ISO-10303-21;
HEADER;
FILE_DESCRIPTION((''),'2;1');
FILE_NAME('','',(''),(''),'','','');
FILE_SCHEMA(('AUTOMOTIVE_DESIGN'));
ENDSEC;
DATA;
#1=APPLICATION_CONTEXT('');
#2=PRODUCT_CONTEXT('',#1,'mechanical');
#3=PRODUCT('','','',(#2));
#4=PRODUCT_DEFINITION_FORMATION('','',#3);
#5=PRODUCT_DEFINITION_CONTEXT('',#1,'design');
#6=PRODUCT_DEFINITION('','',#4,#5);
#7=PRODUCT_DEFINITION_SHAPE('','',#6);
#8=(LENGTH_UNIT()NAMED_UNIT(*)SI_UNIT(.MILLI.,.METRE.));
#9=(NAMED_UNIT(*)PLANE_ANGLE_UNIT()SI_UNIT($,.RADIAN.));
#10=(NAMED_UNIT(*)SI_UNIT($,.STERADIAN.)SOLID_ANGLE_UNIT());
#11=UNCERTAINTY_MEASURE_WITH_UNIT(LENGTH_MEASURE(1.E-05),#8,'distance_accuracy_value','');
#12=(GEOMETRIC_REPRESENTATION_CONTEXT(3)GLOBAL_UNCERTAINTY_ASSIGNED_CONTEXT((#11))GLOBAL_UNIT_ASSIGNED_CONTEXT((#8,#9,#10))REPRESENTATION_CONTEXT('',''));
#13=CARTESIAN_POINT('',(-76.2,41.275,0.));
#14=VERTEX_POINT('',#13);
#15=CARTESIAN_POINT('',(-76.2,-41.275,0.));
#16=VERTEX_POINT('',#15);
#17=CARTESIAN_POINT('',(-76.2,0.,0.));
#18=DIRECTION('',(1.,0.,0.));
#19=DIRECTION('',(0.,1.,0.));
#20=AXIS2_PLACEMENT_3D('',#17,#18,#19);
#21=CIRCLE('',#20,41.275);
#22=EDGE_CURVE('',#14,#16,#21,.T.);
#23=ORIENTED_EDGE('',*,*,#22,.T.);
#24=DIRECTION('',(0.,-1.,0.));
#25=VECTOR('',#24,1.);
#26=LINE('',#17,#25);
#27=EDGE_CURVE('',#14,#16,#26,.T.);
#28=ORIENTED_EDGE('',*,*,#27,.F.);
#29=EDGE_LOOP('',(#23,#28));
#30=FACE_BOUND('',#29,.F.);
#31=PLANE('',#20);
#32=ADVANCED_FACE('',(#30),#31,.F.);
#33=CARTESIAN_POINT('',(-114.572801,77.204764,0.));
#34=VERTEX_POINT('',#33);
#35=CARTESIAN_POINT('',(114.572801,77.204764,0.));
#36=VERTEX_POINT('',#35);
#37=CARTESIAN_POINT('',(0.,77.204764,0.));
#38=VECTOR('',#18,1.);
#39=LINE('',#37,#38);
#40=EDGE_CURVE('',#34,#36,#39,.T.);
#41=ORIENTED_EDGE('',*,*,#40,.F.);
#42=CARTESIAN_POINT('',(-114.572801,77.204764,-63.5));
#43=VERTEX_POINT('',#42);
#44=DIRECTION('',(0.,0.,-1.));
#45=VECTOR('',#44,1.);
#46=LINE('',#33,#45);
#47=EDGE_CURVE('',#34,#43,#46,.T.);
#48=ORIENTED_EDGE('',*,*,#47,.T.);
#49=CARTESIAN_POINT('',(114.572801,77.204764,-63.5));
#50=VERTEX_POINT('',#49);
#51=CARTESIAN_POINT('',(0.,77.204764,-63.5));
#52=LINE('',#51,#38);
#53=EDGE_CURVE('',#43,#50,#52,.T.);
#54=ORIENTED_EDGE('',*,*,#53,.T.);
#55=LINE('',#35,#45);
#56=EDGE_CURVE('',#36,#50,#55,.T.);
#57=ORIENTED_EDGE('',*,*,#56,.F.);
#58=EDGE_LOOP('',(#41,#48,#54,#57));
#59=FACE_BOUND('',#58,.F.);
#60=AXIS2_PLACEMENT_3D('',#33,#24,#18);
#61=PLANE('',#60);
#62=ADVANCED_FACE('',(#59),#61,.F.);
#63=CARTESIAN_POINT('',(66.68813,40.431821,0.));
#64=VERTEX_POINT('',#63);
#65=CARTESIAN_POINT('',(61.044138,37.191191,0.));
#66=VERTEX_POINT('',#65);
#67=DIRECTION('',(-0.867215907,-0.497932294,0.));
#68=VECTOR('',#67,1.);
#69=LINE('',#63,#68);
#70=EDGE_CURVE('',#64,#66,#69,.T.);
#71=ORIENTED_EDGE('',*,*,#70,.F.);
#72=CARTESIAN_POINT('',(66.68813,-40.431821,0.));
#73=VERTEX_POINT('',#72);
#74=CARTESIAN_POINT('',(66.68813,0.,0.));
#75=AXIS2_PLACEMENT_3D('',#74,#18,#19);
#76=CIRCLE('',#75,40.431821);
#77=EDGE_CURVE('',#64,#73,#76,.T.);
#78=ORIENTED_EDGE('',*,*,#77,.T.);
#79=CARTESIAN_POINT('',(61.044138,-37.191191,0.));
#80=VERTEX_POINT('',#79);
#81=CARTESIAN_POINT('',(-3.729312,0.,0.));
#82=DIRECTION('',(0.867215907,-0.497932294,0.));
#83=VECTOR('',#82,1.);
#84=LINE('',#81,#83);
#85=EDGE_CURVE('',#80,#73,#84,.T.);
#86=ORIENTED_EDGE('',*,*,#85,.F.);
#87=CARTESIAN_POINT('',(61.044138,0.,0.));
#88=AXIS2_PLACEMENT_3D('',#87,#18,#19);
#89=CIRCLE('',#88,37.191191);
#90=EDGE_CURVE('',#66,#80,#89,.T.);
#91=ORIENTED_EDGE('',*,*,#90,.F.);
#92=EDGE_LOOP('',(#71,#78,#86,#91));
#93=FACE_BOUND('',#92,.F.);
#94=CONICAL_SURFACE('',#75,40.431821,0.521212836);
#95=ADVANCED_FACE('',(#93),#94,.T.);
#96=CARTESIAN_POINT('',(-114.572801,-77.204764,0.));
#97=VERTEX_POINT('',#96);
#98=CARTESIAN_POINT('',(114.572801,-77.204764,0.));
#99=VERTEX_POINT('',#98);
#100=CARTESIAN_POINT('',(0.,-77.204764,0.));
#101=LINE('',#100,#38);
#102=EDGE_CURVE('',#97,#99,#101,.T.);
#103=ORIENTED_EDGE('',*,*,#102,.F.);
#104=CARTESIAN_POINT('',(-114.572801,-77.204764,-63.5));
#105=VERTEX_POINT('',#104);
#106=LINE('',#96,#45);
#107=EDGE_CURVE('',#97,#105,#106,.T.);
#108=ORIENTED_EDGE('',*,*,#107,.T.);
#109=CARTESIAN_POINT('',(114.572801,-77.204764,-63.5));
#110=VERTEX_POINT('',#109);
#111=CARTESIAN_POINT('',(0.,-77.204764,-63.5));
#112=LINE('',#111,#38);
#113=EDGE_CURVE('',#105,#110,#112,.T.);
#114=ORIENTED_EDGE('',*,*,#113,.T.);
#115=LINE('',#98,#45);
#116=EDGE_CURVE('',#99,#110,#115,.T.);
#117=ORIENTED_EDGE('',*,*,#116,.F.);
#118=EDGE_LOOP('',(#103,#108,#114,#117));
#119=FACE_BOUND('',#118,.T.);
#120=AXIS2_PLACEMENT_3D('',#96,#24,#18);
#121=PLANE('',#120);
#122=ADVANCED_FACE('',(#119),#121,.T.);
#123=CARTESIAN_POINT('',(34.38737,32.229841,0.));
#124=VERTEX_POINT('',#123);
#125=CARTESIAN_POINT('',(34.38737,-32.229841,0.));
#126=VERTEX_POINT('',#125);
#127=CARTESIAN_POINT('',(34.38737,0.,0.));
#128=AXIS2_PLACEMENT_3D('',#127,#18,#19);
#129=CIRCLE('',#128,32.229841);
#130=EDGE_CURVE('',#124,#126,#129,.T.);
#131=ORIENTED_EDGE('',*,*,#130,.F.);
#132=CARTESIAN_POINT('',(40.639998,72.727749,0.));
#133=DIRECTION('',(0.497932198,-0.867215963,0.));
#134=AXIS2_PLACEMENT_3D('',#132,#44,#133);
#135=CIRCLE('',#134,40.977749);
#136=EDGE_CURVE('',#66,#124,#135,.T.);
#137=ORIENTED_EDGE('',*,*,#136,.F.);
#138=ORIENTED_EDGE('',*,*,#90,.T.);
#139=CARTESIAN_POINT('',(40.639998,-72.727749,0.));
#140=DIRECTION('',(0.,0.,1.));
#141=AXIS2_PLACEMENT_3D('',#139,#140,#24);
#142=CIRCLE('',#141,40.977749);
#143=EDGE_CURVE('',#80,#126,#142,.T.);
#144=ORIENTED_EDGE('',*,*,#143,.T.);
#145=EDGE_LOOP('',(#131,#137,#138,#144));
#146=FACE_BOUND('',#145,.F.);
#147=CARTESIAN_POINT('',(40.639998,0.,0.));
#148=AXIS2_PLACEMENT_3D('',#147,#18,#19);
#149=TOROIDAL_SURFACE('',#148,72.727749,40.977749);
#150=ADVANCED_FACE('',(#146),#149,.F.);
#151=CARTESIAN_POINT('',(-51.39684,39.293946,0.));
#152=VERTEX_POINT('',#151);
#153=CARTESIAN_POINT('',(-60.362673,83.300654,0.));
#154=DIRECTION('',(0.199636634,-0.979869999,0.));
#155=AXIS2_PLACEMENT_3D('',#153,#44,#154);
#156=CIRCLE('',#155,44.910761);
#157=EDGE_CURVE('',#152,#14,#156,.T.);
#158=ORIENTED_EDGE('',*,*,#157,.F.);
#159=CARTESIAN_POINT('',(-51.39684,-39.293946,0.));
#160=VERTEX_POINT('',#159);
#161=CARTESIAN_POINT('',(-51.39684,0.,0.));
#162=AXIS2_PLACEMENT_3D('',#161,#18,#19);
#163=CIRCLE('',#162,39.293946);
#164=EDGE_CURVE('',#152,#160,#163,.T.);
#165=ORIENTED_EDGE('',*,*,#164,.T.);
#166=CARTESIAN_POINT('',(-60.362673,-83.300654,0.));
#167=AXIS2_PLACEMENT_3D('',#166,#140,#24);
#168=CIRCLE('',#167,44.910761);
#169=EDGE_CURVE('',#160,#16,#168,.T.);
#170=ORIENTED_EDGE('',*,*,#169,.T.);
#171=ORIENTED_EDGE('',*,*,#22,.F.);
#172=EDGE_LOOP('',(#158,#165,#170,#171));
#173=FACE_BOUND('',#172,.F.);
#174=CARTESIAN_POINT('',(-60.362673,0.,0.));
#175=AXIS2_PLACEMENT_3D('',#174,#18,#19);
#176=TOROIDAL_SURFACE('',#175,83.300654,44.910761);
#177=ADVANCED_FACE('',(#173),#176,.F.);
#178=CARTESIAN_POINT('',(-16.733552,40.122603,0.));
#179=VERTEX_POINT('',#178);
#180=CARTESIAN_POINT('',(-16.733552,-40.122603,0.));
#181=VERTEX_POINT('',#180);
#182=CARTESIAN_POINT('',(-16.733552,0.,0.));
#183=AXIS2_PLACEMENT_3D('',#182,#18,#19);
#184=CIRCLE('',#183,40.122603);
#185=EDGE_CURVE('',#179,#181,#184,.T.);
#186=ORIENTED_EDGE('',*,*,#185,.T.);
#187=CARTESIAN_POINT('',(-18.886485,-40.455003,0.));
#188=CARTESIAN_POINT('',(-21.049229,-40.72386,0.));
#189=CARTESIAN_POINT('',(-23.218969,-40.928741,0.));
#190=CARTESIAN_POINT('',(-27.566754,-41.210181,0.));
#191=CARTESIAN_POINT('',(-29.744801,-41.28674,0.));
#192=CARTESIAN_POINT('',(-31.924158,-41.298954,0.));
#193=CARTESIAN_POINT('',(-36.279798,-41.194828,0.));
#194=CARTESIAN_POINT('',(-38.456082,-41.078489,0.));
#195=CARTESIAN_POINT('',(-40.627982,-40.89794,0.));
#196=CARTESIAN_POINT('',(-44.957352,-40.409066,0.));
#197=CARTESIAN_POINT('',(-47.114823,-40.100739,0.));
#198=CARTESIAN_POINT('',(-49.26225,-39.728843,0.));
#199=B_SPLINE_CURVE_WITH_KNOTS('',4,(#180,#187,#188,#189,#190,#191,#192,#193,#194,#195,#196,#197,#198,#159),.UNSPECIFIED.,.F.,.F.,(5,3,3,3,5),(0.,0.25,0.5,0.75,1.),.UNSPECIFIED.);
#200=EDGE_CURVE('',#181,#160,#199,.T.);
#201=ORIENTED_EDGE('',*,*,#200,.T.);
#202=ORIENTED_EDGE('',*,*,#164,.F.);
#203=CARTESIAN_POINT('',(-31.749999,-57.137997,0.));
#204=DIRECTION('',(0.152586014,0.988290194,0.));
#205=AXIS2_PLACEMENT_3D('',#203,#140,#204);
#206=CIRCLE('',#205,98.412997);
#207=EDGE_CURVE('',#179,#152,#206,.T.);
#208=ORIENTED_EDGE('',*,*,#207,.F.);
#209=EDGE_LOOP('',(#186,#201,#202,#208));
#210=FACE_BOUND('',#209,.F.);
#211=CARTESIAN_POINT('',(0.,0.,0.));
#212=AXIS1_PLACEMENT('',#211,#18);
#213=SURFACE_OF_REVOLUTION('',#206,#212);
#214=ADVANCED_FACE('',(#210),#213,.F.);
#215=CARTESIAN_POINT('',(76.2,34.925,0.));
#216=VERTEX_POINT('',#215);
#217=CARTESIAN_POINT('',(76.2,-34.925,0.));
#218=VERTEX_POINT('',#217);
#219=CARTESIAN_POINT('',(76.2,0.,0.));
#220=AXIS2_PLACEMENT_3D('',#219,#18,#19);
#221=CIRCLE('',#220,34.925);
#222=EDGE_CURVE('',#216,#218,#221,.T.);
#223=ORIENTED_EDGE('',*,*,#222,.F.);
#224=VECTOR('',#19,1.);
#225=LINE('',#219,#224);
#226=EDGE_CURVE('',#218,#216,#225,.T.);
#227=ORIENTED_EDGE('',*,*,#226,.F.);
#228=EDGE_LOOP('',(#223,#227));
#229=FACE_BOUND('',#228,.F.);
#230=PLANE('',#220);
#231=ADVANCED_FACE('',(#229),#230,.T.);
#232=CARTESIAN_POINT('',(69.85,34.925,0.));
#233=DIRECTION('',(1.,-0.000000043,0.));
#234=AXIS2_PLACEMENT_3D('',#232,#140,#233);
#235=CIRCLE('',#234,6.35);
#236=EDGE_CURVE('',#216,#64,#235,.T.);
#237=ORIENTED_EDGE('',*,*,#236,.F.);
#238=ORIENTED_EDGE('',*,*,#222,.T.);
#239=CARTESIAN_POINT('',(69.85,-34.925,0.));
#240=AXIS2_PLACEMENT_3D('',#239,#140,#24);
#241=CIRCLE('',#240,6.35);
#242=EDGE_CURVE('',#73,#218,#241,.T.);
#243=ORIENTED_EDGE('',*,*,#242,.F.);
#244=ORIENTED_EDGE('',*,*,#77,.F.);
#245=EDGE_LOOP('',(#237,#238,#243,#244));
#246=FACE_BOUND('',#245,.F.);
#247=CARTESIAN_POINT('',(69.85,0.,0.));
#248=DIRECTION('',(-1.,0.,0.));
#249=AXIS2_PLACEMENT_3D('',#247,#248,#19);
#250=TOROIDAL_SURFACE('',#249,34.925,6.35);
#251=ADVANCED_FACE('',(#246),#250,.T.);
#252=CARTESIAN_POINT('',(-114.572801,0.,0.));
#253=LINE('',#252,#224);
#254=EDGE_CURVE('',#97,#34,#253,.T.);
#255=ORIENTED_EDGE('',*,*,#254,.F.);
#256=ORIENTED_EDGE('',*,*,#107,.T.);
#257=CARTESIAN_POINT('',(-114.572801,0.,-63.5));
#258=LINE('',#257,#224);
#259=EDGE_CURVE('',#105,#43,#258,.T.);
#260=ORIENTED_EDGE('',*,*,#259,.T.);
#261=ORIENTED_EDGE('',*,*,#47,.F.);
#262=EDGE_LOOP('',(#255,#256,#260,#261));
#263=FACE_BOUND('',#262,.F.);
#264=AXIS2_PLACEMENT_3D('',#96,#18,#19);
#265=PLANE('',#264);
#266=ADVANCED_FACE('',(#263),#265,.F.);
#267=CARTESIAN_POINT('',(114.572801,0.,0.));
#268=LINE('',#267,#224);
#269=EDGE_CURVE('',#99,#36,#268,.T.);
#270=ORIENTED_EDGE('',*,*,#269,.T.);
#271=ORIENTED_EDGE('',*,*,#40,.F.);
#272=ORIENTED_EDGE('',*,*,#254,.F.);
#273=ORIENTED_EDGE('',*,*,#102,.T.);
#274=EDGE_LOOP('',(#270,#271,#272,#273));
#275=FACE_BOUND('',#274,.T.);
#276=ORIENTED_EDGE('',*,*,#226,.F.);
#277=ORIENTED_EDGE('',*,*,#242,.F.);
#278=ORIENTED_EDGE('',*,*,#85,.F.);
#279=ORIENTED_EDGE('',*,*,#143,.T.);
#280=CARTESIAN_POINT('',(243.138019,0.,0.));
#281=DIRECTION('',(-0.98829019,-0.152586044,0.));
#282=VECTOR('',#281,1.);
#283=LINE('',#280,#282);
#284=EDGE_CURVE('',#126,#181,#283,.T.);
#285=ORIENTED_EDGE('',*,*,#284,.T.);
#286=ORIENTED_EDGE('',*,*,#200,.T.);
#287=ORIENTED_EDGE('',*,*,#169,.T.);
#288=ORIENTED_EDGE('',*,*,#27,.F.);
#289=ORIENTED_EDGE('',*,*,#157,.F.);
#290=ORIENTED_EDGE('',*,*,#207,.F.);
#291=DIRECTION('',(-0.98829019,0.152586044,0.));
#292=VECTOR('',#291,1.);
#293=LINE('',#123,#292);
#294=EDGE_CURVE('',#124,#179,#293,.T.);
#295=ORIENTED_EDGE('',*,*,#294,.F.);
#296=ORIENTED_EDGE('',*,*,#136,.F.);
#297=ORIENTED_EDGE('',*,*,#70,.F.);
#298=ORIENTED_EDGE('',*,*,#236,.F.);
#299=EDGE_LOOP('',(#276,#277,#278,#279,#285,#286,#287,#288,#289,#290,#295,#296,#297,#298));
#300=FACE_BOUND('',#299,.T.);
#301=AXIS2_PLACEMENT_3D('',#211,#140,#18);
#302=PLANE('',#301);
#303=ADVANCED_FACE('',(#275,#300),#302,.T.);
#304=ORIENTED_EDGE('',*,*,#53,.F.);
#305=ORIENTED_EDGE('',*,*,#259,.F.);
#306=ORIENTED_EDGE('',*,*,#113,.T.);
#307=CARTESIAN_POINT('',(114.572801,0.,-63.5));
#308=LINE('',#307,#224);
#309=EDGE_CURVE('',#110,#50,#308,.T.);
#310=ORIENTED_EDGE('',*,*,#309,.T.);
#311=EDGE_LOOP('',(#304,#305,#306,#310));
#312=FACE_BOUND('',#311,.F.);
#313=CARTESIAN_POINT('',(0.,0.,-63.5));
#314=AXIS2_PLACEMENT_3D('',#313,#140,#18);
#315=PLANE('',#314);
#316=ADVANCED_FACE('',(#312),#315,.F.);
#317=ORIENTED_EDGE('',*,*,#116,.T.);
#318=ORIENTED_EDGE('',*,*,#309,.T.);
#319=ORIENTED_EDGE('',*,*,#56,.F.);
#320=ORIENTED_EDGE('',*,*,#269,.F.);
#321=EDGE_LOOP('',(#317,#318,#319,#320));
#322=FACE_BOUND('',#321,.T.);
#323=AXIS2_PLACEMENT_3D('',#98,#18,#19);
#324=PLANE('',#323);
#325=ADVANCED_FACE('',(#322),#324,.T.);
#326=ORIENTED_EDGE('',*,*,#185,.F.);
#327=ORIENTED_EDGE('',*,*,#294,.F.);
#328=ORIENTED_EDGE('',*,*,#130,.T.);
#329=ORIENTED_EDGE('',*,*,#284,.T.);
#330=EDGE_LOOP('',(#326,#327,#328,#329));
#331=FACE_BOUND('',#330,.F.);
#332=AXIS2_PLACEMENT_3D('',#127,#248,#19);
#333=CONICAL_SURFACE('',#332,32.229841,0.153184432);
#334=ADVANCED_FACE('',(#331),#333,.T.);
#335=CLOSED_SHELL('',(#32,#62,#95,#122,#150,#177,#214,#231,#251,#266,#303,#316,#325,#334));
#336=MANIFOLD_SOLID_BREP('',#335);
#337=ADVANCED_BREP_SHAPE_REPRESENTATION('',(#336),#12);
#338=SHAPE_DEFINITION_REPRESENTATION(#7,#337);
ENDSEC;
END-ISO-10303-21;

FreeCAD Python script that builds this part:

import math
import FreeCAD as App
import Part
import Sketcher

V = App.Vector
Q = App.Units.Quantity

doc = App.newDocument("Part")
params = doc.addObject("Spreadsheet::Sheet", "Params")
for row, (alias, value) in enumerate([
    ("sketch1_width", "6 in"),
    ("sketch1_radius", "0.25 in"),
    ("sketch1_height", "1.625 in"),
    ("sketch1_height2", "1.375 in"),
    ("revolution_angle", "360 deg"),
    ("pad1_length", "2.5 in"),
], start=1):
    params.set(f"A{row}", alias)
    params.set(f"B{row}", "=" + value)
    params.setAlias(f"B{row}", alias)

body = doc.addObject("PartDesign::Body", "Body")

sketch1 = doc.addObject("Sketcher::SketchObject", "Sketch")
body.addObject(sketch1)
sketch1.AttachmentSupport = (doc.XY_Plane, [""])
sketch1.MapMode = "FlatFace"
sketch1.addGeometry([
    Part.LineSegment(V(-76, 41, 0), V(-76, 0, 0)),
    Part.LineSegment(V(-76, 0, 0), V(76, 0, 0)),
    Part.LineSegment(V(76, 0, 0), V(76, 35, 0)),
    Part.ArcOfCircle(Part.Circle(V(70, 35, 0), V(0, 0, 1), 6), math.radians(0), math.radians(120)),
    Part.LineSegment(V(67, 40, 0), V(61, 37, 0)),
    Part.ArcOfCircle(Part.Circle(V(41, 73, 0), V(0, 0, 1), 41), math.radians(-99), math.radians(-60)),
    Part.LineSegment(V(34, 32, 0), V(-17, 40, 0)),
    Part.ArcOfCircle(Part.Circle(V(-32, -57, 0), V(0, 0, 1), 98), math.radians(81), math.radians(102)),
    Part.ArcOfCircle(Part.Circle(V(-60, 83, 0), V(0, 0, 1), 45), math.radians(-111), math.radians(-78)),
], False)
sketch1.addConstraint([
    Sketcher.Constraint("Coincident", 0, 2, 1, 1),
    Sketcher.Constraint("Coincident", 1, 2, 2, 1),
    Sketcher.Constraint("Tangent", 2, 2, 3, 1),
    Sketcher.Constraint("Tangent", 3, 2, 4, 1),
    Sketcher.Constraint("Tangent", 4, 2, 5, 2),
    Sketcher.Constraint("Tangent", 5, 1, 6, 1),
    Sketcher.Constraint("Tangent", 6, 2, 7, 1),
    Sketcher.Constraint("Tangent", 7, 2, 8, 2),
    Sketcher.Constraint("Coincident", 8, 1, 0, 1),
    Sketcher.Constraint("Vertical", 0),
    Sketcher.Constraint("Horizontal", 1),
    Sketcher.Constraint("Vertical", 2),
    Sketcher.Constraint("Symmetric", 0, 2, 1, 2, -1, 1),
    Sketcher.Constraint("DistanceX", 1, 1, 1, 2, Q("6 in")),
    Sketcher.Constraint("Radius", 3, Q("0.25 in")),
    Sketcher.Constraint("DistanceX", 7, 3, 3, 3, Q("4 in")),
    Sketcher.Constraint("DistanceX", -1, 1, 5, 3, Q("1.5999999 in")),
    Sketcher.Constraint("DistanceY", 0, 2, 0, 1, Q("1.625 in")),
    Sketcher.Constraint("DistanceY", 2, 1, 2, 2, Q("1.375 in")),
    Sketcher.Constraint("Radius", 5, 40.977749),
    Sketcher.Constraint("Radius", 8, 44.910761),
    Sketcher.Constraint("DistanceX", 8, 3, 3, 2, Q("5.0020001 in")),
    Sketcher.Constraint("Radius", 7, 98.412997),
    Sketcher.Constraint("Distance", 6, 51.726631),
])
sketch1.setExpression("Constraints[13]", "Params.sketch1_width")
sketch1.setExpression("Constraints[14]", "Params.sketch1_radius")
sketch1.setExpression("Constraints[17]", "Params.sketch1_height")
sketch1.setExpression("Constraints[18]", "Params.sketch1_height2")
revolution = doc.addObject("PartDesign::Revolution", "Revolution")
body.addObject(revolution)
revolution.Profile = sketch1
revolution.ReferenceAxis = (sketch1, ["H_Axis"])
revolution.setExpression("Angle", "Params.revolution_angle")

sketch2 = doc.addObject("Sketcher::SketchObject", "Sketch001")
body.addObject(sketch2)
sketch2.AttachmentSupport = (doc.XY_Plane, [""])
sketch2.MapMode = "FlatFace"
sketch2.addGeometry([
    Part.LineSegment(V(-115, 77, 0), V(-115, -77, 0)),
    Part.LineSegment(V(-115, -77, 0), V(115, -77, 0)),
    Part.LineSegment(V(115, -77, 0), V(115, 77, 0)),
    Part.LineSegment(V(115, 77, 0), V(-115, 77, 0)),
], False)
sketch2.addConstraint([
    Sketcher.Constraint("Coincident", 0, 2, 1, 1),
    Sketcher.Constraint("Coincident", 1, 2, 2, 1),
    Sketcher.Constraint("Coincident", 2, 2, 3, 1),
    Sketcher.Constraint("Coincident", 3, 2, 0, 1),
    Sketcher.Constraint("Vertical", 0),
    Sketcher.Constraint("Horizontal", 1),
    Sketcher.Constraint("Vertical", 2),
    Sketcher.Constraint("Horizontal", 3),
    Sketcher.Constraint("Symmetric", 0, 2, 2, 2, -1, 1),
    Sketcher.Constraint("DistanceX", 1, 1, 1, 2, 229.145602),
    Sketcher.Constraint("DistanceY", 0, 2, 0, 1, 154.409528),
])
pad1 = doc.addObject("PartDesign::Pad", "Pad")
body.addObject(pad1)
pad1.Profile = sketch2
pad1.setExpression("Length", "Params.pad1_length")
pad1.Reversed = True

doc.recompute()
